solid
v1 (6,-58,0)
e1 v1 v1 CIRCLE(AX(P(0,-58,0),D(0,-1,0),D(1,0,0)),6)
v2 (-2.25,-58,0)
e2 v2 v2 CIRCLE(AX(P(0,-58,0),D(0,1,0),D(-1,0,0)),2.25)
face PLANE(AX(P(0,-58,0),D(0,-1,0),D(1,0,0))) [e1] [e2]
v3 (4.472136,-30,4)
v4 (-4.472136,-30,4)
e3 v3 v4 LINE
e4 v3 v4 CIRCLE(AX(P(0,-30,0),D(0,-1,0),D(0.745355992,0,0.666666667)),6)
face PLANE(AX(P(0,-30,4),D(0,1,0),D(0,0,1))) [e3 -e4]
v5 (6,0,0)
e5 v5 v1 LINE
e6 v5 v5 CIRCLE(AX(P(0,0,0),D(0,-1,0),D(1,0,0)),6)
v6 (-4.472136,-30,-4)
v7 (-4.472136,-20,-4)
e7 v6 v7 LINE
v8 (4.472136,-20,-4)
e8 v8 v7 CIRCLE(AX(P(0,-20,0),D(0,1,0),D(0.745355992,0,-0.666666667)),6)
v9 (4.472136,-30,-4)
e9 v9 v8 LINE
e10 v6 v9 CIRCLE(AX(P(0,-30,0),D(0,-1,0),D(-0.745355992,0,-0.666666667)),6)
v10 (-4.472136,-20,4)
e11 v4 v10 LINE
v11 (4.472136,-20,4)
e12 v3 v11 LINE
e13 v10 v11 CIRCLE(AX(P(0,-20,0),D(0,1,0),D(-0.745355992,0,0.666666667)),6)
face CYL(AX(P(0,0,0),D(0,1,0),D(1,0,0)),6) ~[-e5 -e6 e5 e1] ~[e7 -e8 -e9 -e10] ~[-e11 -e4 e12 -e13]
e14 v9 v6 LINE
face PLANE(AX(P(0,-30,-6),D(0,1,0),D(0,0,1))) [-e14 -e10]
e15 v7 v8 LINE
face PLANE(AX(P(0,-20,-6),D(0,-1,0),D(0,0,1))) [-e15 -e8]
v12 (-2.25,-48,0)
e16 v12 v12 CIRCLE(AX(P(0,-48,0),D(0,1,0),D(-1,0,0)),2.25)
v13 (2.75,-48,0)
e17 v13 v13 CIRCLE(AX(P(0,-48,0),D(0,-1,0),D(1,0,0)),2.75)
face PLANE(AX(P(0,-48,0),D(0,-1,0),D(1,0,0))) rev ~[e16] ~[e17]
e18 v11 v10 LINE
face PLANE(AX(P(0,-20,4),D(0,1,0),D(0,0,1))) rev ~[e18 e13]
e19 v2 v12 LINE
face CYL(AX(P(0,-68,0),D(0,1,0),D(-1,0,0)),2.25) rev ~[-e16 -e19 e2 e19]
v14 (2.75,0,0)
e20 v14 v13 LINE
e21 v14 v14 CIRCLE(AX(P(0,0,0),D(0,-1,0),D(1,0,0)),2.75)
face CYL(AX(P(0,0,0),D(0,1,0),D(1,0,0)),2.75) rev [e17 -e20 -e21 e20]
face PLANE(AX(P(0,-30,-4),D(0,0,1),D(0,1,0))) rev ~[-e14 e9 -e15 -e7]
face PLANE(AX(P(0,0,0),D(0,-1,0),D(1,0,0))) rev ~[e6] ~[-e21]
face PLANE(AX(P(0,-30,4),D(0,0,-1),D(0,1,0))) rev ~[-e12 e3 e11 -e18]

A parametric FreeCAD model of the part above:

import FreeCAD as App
import Part
import Sketcher
Q = App.Units.Quantity

doc = App.newDocument("Part")
body = doc.addObject("PartDesign::Body", "Body")

sketch1 = body.newObject("Sketcher::SketchObject", "Sketch")
sketch1.AttachmentSupport = (doc.getObject("XZ_Plane"), [""])
sketch1.MapMode = "FlatFace"
sketch1.addGeometry(Part.Circle(App.Vector(0, 0, 0), App.Vector(0, 0, 1), 6), False)
sketch1.addConstraint(Sketcher.Constraint("Coincident", 0, 3, -1, 1))
sketch1.addConstraint(Sketcher.Constraint("Diameter", 0, Q("12 mm")))
pad1 = body.newObject("PartDesign::Pad", "Pad")
pad1.Profile = sketch1
pad1.Length = 58

sketch2 = body.newObject("Sketcher::SketchObject", "Sketch001")
sketch2.AttachmentSupport = (doc.getObject("XZ_Plane"), [""])
sketch2.MapMode = "FlatFace"
sketch2.addGeometry(Part.Circle(App.Vector(0, 0, 0), App.Vector(0, 0, 1), 2.8), False)
sketch2.addConstraint(Sketcher.Constraint("Coincident", 0, 3, -1, 1))
sketch2.addConstraint(Sketcher.Constraint("Diameter", 0, Q("5.5 mm")))
pocket1 = body.newObject("PartDesign::Pocket", "Pocket")
pocket1.Profile = sketch2
pocket1.Length = 48
pocket1.Reversed = True

sketch3 = body.newObject("Sketcher::SketchObject", "Sketch002")
sketch3.AttachmentSupport = (doc.getObject("YZ_Plane"), [""])
sketch3.MapMode = "FlatFace"
sketch3.addGeometry(Part.LineSegment(App.Vector(-30, -4, 0), App.Vector(-30, -6, 0)), False)
sketch3.addGeometry(Part.LineSegment(App.Vector(-30, -6, 0), App.Vector(-20, -6, 0)), False)
sketch3.addGeometry(Part.LineSegment(App.Vector(-20, -6, 0), App.Vector(-20, -4, 0)), False)
sketch3.addGeometry(Part.LineSegment(App.Vector(-20, -4, 0), App.Vector(-30, -4, 0)), False)
sketch3.addGeometry(Part.LineSegment(App.Vector(-30, 6, 0), App.Vector(-30, 4, 0)), False)
sketch3.addGeometry(Part.LineSegment(App.Vector(-30, 4, 0), App.Vector(-20, 4, 0)), False)
sketch3.addGeometry(Part.LineSegment(App.Vector(-20, 4, 0), App.Vector(-20, 6, 0)), False)
sketch3.addGeometry(Part.LineSegment(App.Vector(-20, 6, 0), App.Vector(-30, 6, 0)), False)
sketch3.addConstraint(Sketcher.Constraint("Coincident", 0, 2, 1, 1))
sketch3.addConstraint(Sketcher.Constraint("Coincident", 1, 2, 2, 1))
sketch3.addConstraint(Sketcher.Constraint("Coincident", 2, 2, 3, 1))
sketch3.addConstraint(Sketcher.Constraint("Coincident", 3, 2, 0, 1))
sketch3.addConstraint(Sketcher.Constraint("Coincident", 4, 2, 5, 1))
sketch3.addConstraint(Sketcher.Constraint("Coincident", 5, 2, 6, 1))
sketch3.addConstraint(Sketcher.Constraint("Coincident", 6, 2, 7, 1))
sketch3.addConstraint(Sketcher.Constraint("Coincident", 7, 2, 4, 1))
sketch3.addConstraint(Sketcher.Constraint("Vertical", 0))
sketch3.addConstraint(Sketcher.Constraint("Horizontal", 1))
sketch3.addConstraint(Sketcher.Constraint("Vertical", 2))
sketch3.addConstraint(Sketcher.Constraint("Horizontal", 3))
sketch3.addConstraint(Sketcher.Constraint("Vertical", 4))
sketch3.addConstraint(Sketcher.Constraint("Horizontal", 5))
sketch3.addConstraint(Sketcher.Constraint("Vertical", 6))
sketch3.addConstraint(Sketcher.Constraint("Horizontal", 7))
sketch3.addConstraint(Sketcher.Constraint("Symmetric", 3, 2, 4, 2, -1))
sketch3.addConstraint(Sketcher.Constraint("Symmetric", 1, 2, 6, 2, -1))
sketch3.addConstraint(Sketcher.Constraint("DistanceX", 1, 1, 1, 2, Q("10 mm")))
sketch3.addConstraint(Sketcher.Constraint("DistanceY", 0, 2, 0, 1, Q("2 mm")))
sketch3.addConstraint(Sketcher.Constraint("DistanceX", 0, 2, -1, 1, Q("30 mm")))
sketch3.addConstraint(Sketcher.Constraint("DistanceY", 0, 2, -1, 1, Q("6 mm")))
pocket2 = body.newObject("PartDesign::Pocket", "Pocket001")
pocket2.Profile = sketch3
pocket2.Type = "ThroughAll"
pocket2.Midplane = True

sketch4 = body.newObject("Sketcher::SketchObject", "Sketch003")
sketch4.AttachmentSupport = (doc.getObject("XZ_Plane"), [""])
sketch4.MapMode = "FlatFace"
sketch4.AttachmentOffset = App.Placement(App.Vector(0, 0, 58), App.Rotation())
sketch4.addGeometry(Part.Circle(App.Vector(0, 0, 0), App.Vector(0, 0, 1), 2.2), False)
sketch4.addConstraint(Sketcher.Constraint("Coincident", 0, 3, -1, 1))
sketch4.addConstraint(Sketcher.Constraint("Diameter", 0, Q("4.5 mm")))
doc.recompute()
hole = body.newObject("PartDesign::Hole", "Hole")
hole.Profile = sketch4
hole.ThreadType = "None"
hole.Diameter = 4.5
hole.DepthType = "Dimension"
hole.Depth = 10
hole.DrillPoint = "Angled"
hole.DrillPointAngle = 118

doc.recompute()
